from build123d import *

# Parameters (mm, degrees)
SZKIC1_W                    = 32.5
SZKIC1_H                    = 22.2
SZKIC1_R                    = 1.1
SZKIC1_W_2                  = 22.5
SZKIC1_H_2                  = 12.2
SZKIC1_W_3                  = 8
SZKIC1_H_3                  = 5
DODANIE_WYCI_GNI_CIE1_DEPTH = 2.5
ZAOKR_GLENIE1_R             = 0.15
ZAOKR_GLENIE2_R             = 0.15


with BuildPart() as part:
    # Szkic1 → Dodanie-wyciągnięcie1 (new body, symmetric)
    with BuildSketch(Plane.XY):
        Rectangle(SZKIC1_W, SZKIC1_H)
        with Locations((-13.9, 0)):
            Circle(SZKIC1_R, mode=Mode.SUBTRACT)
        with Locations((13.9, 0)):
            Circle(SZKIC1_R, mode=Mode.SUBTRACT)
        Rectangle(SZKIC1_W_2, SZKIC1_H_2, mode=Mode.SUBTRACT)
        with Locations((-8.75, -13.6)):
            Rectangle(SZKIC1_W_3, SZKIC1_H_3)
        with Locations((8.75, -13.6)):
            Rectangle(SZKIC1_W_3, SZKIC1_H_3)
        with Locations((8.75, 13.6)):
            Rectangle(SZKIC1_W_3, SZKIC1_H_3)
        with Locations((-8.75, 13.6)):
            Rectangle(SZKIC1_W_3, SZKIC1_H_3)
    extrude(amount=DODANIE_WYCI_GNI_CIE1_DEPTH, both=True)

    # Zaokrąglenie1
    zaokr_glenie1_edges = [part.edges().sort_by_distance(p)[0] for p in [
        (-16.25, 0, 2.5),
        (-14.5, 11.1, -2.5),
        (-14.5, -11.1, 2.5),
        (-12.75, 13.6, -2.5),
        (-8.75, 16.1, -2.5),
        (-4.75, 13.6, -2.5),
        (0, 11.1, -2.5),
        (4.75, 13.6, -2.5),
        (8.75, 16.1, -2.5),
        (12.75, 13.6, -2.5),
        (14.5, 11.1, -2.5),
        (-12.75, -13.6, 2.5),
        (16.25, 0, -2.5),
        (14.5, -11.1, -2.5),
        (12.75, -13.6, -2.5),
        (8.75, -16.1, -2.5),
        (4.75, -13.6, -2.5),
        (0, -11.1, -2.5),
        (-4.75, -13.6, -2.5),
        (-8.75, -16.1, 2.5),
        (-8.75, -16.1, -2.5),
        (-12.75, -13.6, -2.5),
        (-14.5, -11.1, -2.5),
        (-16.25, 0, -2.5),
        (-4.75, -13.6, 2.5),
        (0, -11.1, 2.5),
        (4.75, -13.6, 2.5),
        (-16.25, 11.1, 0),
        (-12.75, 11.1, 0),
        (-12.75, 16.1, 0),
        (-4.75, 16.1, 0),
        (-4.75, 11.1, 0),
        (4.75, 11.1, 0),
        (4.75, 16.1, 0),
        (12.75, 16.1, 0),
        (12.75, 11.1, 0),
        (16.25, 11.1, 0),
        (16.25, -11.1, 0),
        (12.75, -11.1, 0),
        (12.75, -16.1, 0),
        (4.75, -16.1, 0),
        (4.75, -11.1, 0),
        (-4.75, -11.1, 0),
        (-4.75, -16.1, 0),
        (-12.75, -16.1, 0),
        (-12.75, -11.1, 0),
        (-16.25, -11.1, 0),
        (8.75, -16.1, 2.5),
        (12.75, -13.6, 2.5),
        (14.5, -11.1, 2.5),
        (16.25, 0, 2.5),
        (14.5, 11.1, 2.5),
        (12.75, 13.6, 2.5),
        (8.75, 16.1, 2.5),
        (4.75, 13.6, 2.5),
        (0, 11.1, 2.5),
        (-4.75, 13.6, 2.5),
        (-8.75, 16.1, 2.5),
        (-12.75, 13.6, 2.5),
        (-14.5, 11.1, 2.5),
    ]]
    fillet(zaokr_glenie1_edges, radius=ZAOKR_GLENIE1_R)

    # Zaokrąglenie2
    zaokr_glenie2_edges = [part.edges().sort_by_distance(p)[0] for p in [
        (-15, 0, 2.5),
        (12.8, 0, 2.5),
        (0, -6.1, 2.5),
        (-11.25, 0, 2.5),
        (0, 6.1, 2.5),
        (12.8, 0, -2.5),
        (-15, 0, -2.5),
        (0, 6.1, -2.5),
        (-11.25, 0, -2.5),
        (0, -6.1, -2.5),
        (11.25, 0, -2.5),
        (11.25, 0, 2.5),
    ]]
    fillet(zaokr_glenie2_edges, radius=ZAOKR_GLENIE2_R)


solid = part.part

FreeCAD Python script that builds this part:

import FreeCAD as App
import Part
import Sketcher
Q = App.Units.Quantity


def edges_at(feature, points):
    """Names of the edges that pass closest to the given points."""
    edges = feature.Shape.Edges
    near = lambda p: min(range(len(edges)), key=lambda i: edges[i].distToShape(Part.Vertex(*p))[0])
    return sorted({f"Edge{near(p) + 1}" for p in points})


def add_polygon(sketch, points):
    """Adds a closed chain of lines whose ends are joined by coincident constraints."""
    first, n = sketch.GeometryCount, len(points)
    for a, b in zip(points, points[1:] + points[:1]):
        sketch.addGeometry(Part.LineSegment(App.Vector(*a, 0), App.Vector(*b, 0)), False)
    for i in range(n):
        sketch.addConstraint(Sketcher.Constraint("Coincident", first + i, 2, first + (i + 1) % n, 1))

doc = App.newDocument("Part")
body = doc.addObject("PartDesign::Body", "Body")

# Sketch on XY plane
sketch1 = body.newObject("Sketcher::SketchObject", "Sketch")
sketch1.AttachmentSupport = (doc.getObject("XY_Plane"), [""])
sketch1.MapMode = "FlatFace"
add_polygon(sketch1, [(-16.25, 11.1), (-16.25, -11.1), (-12.75, -11.1), (-12.75, -16.1), (-4.75, -16.1), (-4.75, -11.1), (4.75, -11.1), (4.75, -16.1), (12.75, -16.1), (12.75, -11.1), (16.25, -11.1), (16.25, 11.1), (12.75, 11.1), (12.75, 16.1), (4.75, 16.1), (4.75, 11.1), (-4.75, 11.1), (-4.75, 16.1), (-12.75, 16.1), (-12.75, 11.1)])  # lines 0-19
sketch1.addGeometry(Part.Circle(App.Vector(-13.9, 0, 0), App.Vector(0, 0, 1), 1.1), False)  # 20
add_polygon(sketch1, [(11.25, -6.1), (-11.25, -6.1), (-11.25, 6.1), (11.25, 6.1)])  # lines 21-24
sketch1.addGeometry(Part.Circle(App.Vector(13.9, 0, 0), App.Vector(0, 0, 1), 1.1), False)  # 25
sketch1.addConstraint([
    Sketcher.Constraint("Vertical", 0),
    Sketcher.Constraint("Horizontal", 1),
    Sketcher.Constraint("Vertical", 2),
    Sketcher.Constraint("Horizontal", 3),
    Sketcher.Constraint("Vertical", 4),
    Sketcher.Constraint("Horizontal", 5),
    Sketcher.Constraint("Vertical", 6),
    Sketcher.Constraint("Horizontal", 7),
    Sketcher.Constraint("Vertical", 8),
    Sketcher.Constraint("Horizontal", 9),
    Sketcher.Constraint("Vertical", 10),
    Sketcher.Constraint("Horizontal", 11),
    Sketcher.Constraint("Vertical", 12),
    Sketcher.Constraint("Horizontal", 13),
    Sketcher.Constraint("Vertical", 14),
    Sketcher.Constraint("Horizontal", 15),
    Sketcher.Constraint("Vertical", 16),
    Sketcher.Constraint("Horizontal", 17),
    Sketcher.Constraint("Vertical", 18),
    Sketcher.Constraint("Horizontal", 19),
    Sketcher.Constraint("Horizontal", 21),
    Sketcher.Constraint("Vertical", 22),
    Sketcher.Constraint("Horizontal", 23),
    Sketcher.Constraint("Vertical", 24),
    Sketcher.Constraint("Equal", 20, 25),
    Sketcher.Constraint("Symmetric", 20, 3, 25, 3, -1, 1),
    Sketcher.Constraint("Symmetric", 0, 2, 10, 2, -1, 1),
    Sketcher.Constraint("Symmetric", 2, 2, 12, 2, -1, 1),
    Sketcher.Constraint("Symmetric", 4, 2, 14, 2, -1, 1),
    Sketcher.Constraint("Symmetric", 6, 2, 16, 2, -1, 1),
    Sketcher.Constraint("Symmetric", 8, 2, 18, 2, -1, 1),
    Sketcher.Constraint("Symmetric", 21, 2, 23, 2, -1, 1),
    Sketcher.Constraint("Symmetric", 3, 2, 6, 2, -2),
    Sketcher.Constraint("Symmetric", 1, 2, 8, 2, -2),
    Sketcher.Constraint("PointOnObject", 20, 3, -1),
    Sketcher.Constraint("Horizontal", 1, 2, 4, 2),
    Sketcher.Constraint("Diameter", 20, Q("2.2 mm")),
    Sketcher.Constraint("DistanceX", 3, 1, 3, 2, Q("8 mm")),
    Sketcher.Constraint("DistanceY", 2, 2, 2, 1, Q("5 mm")),
    Sketcher.Constraint("DistanceX", 1, 1, 1, 2, Q("3.5 mm")),
    Sketcher.Constraint("DistanceX", 5, 1, 5, 2, Q("9.5 mm")),
    Sketcher.Constraint("DistanceX", 21, 2, 21, 1, Q("22.5 mm")),
    Sketcher.Constraint("DistanceY", 0, 2, 0, 1, Q("22.2 mm")),
    Sketcher.Constraint("DistanceY", 22, 1, 22, 2, Q("12.2 mm")),
    Sketcher.Constraint("DistanceX", 20, 3, -1, 1, Q("13.9 mm")),
])
pad1 = body.newObject("PartDesign::Pad", "Pad")
pad1.Profile = sketch1
pad1.Length = 5
pad1.Midplane = True
doc.recompute()

fillet = body.newObject("PartDesign::Fillet", "Fillet")
fillet.Base = (pad1, edges_at(pad1, [
    (-16.25, 0, 2.5),
    (-14.5, 11.1, -2.5),
    (-14.5, -11.1, 2.5),
    (-12.75, 13.6, -2.5),
    (-8.75, 16.1, -2.5),
    (-4.75, 13.6, -2.5),
    (0, 11.1, -2.5),
    (4.75, 13.6, -2.5),
    (8.75, 16.1, -2.5),
    (12.75, 13.6, -2.5),
    (14.5, 11.1, -2.5),
    (-12.75, -13.6, 2.5),
    (16.25, 0, -2.5),
    (14.5, -11.1, -2.5),
    (12.75, -13.6, -2.5),
    (8.75, -16.1, -2.5),
    (4.75, -13.6, -2.5),
    (0, -11.1, -2.5),
    (-4.75, -13.6, -2.5),
    (-8.75, -16.1, 2.5),
    (-8.75, -16.1, -2.5),
    (-12.75, -13.6, -2.5),
    (-14.5, -11.1, -2.5),
    (-16.25, 0, -2.5),
    (-4.75, -13.6, 2.5),
    (0, -11.1, 2.5),
    (4.75, -13.6, 2.5),
    (-16.25, 11.1, 0),
    (-12.75, 11.1, 0),
    (-12.75, 16.1, 0),
    (-4.75, 16.1, 0),
    (-4.75, 11.1, 0),
    (4.75, 11.1, 0),
    (4.75, 16.1, 0),
    (12.75, 16.1, 0),
    (12.75, 11.1, 0),
    (16.25, 11.1, 0),
    (16.25, -11.1, 0),
    (12.75, -11.1, 0),
    (12.75, -16.1, 0),
    (4.75, -16.1, 0),
    (4.75, -11.1, 0),
    (-4.75, -11.1, 0),
    (-4.75, -16.1, 0),
    (-12.75, -16.1, 0),
    (-12.75, -11.1, 0),
    (-16.25, -11.1, 0),
    (8.75, -16.1, 2.5),
    (12.75, -13.6, 2.5),
    (14.5, -11.1, 2.5),
    (16.25, 0, 2.5),
    (14.5, 11.1, 2.5),
    (12.75, 13.6, 2.5),
    (8.75, 16.1, 2.5),
    (4.75, 13.6, 2.5),
    (0, 11.1, 2.5),
    (-4.75, 13.6, 2.5),
    (-8.75, 16.1, 2.5),
    (-12.75, 13.6, 2.5),
    (-14.5, 11.1, 2.5),
]))
fillet.Radius = 0.15
doc.recompute()

fillet2 = body.newObject("PartDesign::Fillet", "Fillet001")
fillet2.Base = (fillet, edges_at(fillet, [
    (-15, 0, 2.5),
    (12.8, 0, 2.5),
    (0, -6.1, 2.5),
    (-11.25, 0, 2.5),
    (0, 6.1, 2.5),
    (12.8, 0, -2.5),
    (-15, 0, -2.5),
    (0, 6.1, -2.5),
    (-11.25, 0, -2.5),
    (0, -6.1, -2.5),
    (11.25, 0, -2.5),
    (11.25, 0, 2.5),
]))
fillet2.Radius = 0.15

doc.recompute()
